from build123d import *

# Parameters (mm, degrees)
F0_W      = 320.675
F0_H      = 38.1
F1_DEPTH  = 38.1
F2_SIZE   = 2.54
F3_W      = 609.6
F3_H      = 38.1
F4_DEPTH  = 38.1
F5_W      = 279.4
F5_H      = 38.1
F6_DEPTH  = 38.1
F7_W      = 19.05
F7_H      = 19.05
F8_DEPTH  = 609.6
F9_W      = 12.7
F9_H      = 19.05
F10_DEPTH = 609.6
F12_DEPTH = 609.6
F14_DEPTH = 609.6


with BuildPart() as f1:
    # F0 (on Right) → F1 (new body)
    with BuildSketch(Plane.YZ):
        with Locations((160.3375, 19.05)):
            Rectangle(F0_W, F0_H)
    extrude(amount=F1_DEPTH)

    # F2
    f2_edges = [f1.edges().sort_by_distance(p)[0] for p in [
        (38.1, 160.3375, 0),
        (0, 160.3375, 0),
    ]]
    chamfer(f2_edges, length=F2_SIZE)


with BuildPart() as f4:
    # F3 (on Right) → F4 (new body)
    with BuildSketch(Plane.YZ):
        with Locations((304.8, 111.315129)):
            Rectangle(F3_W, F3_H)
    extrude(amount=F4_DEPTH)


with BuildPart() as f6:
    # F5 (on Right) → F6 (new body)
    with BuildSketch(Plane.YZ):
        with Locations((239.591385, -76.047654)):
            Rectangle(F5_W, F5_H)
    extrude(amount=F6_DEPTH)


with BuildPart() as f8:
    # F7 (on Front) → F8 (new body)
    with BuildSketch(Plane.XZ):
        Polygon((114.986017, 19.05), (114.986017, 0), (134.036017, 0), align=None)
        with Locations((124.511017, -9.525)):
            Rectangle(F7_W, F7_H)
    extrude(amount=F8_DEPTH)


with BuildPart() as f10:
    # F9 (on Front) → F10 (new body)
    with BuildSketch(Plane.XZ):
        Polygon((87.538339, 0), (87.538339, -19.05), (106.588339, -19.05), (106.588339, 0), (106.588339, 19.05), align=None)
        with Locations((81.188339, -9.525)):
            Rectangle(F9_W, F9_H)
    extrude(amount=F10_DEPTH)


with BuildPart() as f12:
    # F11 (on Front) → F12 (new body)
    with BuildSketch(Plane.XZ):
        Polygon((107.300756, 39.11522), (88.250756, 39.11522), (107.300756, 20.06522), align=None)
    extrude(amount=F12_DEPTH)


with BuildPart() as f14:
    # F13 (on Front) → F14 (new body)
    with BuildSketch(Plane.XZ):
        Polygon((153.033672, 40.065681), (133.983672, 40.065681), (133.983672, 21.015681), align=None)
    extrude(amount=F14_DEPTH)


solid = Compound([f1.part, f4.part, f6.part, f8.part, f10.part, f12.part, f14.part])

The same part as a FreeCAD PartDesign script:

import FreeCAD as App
import Part
import Sketcher
from FreeCAD import Vector
Q = App.Units.Quantity


def edges_at(feature, points):
    """Names of the edges that pass closest to the given points."""
    edges = feature.Shape.Edges
    near = lambda p: min(range(len(edges)), key=lambda i: edges[i].distToShape(Part.Vertex(*p))[0])
    return sorted({f"Edge{near(p) + 1}" for p in points})


def add_polygon(sketch, points):
    """Adds a closed chain of lines whose ends are joined by coincident constraints."""
    first, n = sketch.GeometryCount, len(points)
    for a, b in zip(points, points[1:] + points[:1]):
        sketch.addGeometry(Part.LineSegment(App.Vector(*a, 0), App.Vector(*b, 0)), False)
    for i in range(n):
        sketch.addConstraint(Sketcher.Constraint("Coincident", first + i, 2, first + (i + 1) % n, 1))

doc = App.newDocument("Part")
body = doc.addObject("PartDesign::Body", "Body")

# Sketch on YZ plane
sketch1 = body.newObject("Sketcher::SketchObject", "Sketch")
sketch1.AttachmentSupport = (doc.getObject("YZ_Plane"), [""])
sketch1.MapMode = "FlatFace"
add_polygon(sketch1, [(0, 38.1), (0, 0), (320.675, 0), (320.675, 38.1)])  # lines 0-3
sketch1.addConstraint([
    Sketcher.Constraint("Vertical", 0),
    Sketcher.Constraint("Horizontal", 1),
    Sketcher.Constraint("Vertical", 2),
    Sketcher.Constraint("Horizontal", 3),
    Sketcher.Constraint("Coincident", 0, 2, -1, 1),
    Sketcher.Constraint("DistanceY", 0, 2, 0, 1, Q("1.5 in")),
    Sketcher.Constraint("DistanceX", 1, 1, 1, 2, Q("12.625 in")),
])
pad1 = body.newObject("PartDesign::Pad", "Pad")
pad1.Profile = sketch1
pad1.Length = Q("1.5 in")
doc.recompute()

chamfer = body.newObject("PartDesign::Chamfer", "Chamfer")
chamfer.Base = (pad1, edges_at(pad1, [(38.1, 160.338, 0), (0, 160.338, 0)]))
chamfer.Size = Q("0.1 in")
body2 = doc.addObject("PartDesign::Body", "Body001")

# Sketch on YZ plane
sketch2 = body2.newObject("Sketcher::SketchObject", "Sketch001")
sketch2.AttachmentSupport = (doc.getObject("YZ_Plane001"), [""])
sketch2.MapMode = "FlatFace"
add_polygon(sketch2, [(0, 130.365129), (0, 92.265129), (609.6, 92.265129), (609.6, 130.365129)])  # lines 0-3
sketch2.addConstraint([
    Sketcher.Constraint("Vertical", 0),
    Sketcher.Constraint("Horizontal", 1),
    Sketcher.Constraint("Vertical", 2),
    Sketcher.Constraint("Horizontal", 3),
    Sketcher.Constraint("PointOnObject", 0, 2, -2),
    Sketcher.Constraint("DistanceX", 1, 1, 1, 2, Q("24 in")),
    Sketcher.Constraint("DistanceY", 0, 2, 0, 1, Q("1.5 in")),
    Sketcher.Constraint("DistanceY", -1, 1, 0, 2, Q("92.265129 mm")),
])
pad2 = body2.newObject("PartDesign::Pad", "Pad001")
pad2.Profile = sketch2
pad2.Length = Q("1.5 in")
body3 = doc.addObject("PartDesign::Body", "Body002")

# Sketch on YZ plane
sketch3 = body3.newObject("Sketcher::SketchObject", "Sketch002")
sketch3.AttachmentSupport = (doc.getObject("YZ_Plane002"), [""])
sketch3.MapMode = "FlatFace"
add_polygon(sketch3, [(99.891385, -56.997654), (99.891385, -95.097654), (379.291385, -95.097654), (379.291385, -56.997654)])  # lines 0-3
sketch3.addConstraint([
    Sketcher.Constraint("Vertical", 0),
    Sketcher.Constraint("Horizontal", 1),
    Sketcher.Constraint("Vertical", 2),
    Sketcher.Constraint("Horizontal", 3),
    Sketcher.Constraint("DistanceX", 1, 1, 1, 2, Q("11 in")),
    Sketcher.Constraint("DistanceY", 0, 2, 0, 1, Q("1.5 in")),
    Sketcher.Constraint("DistanceX", -1, 1, 0, 2, Q("99.891385 mm")),
    Sketcher.Constraint("DistanceY", 0, 2, -1, 1, Q("95.097654 mm")),
])
pad3 = body3.newObject("PartDesign::Pad", "Pad002")
pad3.Profile = sketch3
pad3.Length = Q("1.5 in")
body4 = doc.addObject("PartDesign::Body", "Body003")

# Sketch on XZ plane
sketch4 = body4.newObject("Sketcher::SketchObject", "Sketch003")
sketch4.AttachmentSupport = (doc.getObject("XZ_Plane003"), [""])
sketch4.MapMode = "FlatFace"
add_polygon(sketch4, [(114.986017, 19.05), (114.986017, -19.05), (134.036017, -19.05), (134.036017, 0)])  # lines 0-3
sketch4.addConstraint([
    Sketcher.Constraint("Vertical", 0),
    Sketcher.Constraint("Horizontal", 1),
    Sketcher.Constraint("Vertical", 2),
    Sketcher.Constraint("PointOnObject", 2, 2, -1),
    Sketcher.Constraint("Equal", 1, 2),
    Sketcher.Constraint("DistanceY", 0, 2, 0, 1, Q("1.5 in")),
    Sketcher.Constraint("Angle", 3, Q("135 deg")),
    Sketcher.Constraint("DistanceX", -1, 1, 0, 2, Q("114.986017 mm")),
])
pad4 = body4.newObject("PartDesign::Pad", "Pad003")
pad4.Profile = sketch4
pad4.Length = Q("24 in")
body5 = doc.addObject("PartDesign::Body", "Body004")

# Sketch on XZ plane
sketch5 = body5.newObject("Sketcher::SketchObject", "Sketch004")
sketch5.AttachmentSupport = (doc.getObject("XZ_Plane004"), [""])
sketch5.MapMode = "FlatFace"
add_polygon(sketch5, [(106.588339, -19.05), (106.588339, 19.05), (87.538339, 0), (74.838339, 0), (74.838339, -19.05)])  # lines 0-4
sketch5.addConstraint([
    Sketcher.Constraint("Vertical", 0),
    Sketcher.Constraint("Horizontal", 2),
    Sketcher.Constraint("Vertical", 3),
    Sketcher.Constraint("Horizontal", 4),
    Sketcher.Constraint("PointOnObject", 1, 2, -1),
    Sketcher.Constraint("DistanceX", 2, 2, 2, 1, Q("0.5 in")),
    Sketcher.Constraint("DistanceY", 0, 1, 0, 2, Q("1.5 in")),
    Sketcher.Constraint("Angle", 1, Q("-135 deg")),
    Sketcher.Constraint("DistanceX", 4, 1, 4, 2, Q("1.25 in")),
    Sketcher.Constraint("DistanceX", -1, 1, 0, 2, Q("106.588339 mm")),
])
pad5 = body5.newObject("PartDesign::Pad", "Pad004")
pad5.Profile = sketch5
pad5.Length = Q("24 in")
body6 = doc.addObject("PartDesign::Body", "Body005")

# Sketch on XZ plane
sketch6 = body6.newObject("Sketcher::SketchObject", "Sketch005")
sketch6.AttachmentSupport = (doc.getObject("XZ_Plane005"), [""])
sketch6.MapMode = "FlatFace"
add_polygon(sketch6, [(107.300756, 39.11522), (88.250756, 39.11522), (107.300756, 20.06522)])  # lines 0-2
sketch6.addConstraint([
    Sketcher.Constraint("Horizontal", 0),
    Sketcher.Constraint("Vertical", 2),
    Sketcher.Constraint("Equal", 0, 2),
    Sketcher.Constraint("DistanceX", 0, 2, 0, 1, Q("0.75 in")),
    Sketcher.Constraint("DistanceY", -1, 1, 0, 2, Q("39.11522 mm")),
    Sketcher.Constraint("DistanceX", -1, 1, 0, 2, Q("88.250756 mm")),
])
pad6 = body6.newObject("PartDesign::Pad", "Pad005")
pad6.Profile = sketch6
pad6.Length = Q("24 in")
body7 = doc.addObject("PartDesign::Body", "Body006")

# Sketch on XZ plane
sketch7 = body7.newObject("Sketcher::SketchObject", "Sketch006")
sketch7.AttachmentSupport = (doc.getObject("XZ_Plane006"), [""])
sketch7.MapMode = "FlatFace"
add_polygon(sketch7, [(153.033672, 40.065681), (133.983672, 40.065681), (133.983672, 21.015681)])  # lines 0-2
sketch7.addConstraint([
    Sketcher.Constraint("Horizontal", 0),
    Sketcher.Constraint("Vertical", 1),
    Sketcher.Constraint("Equal", 0, 1),
    Sketcher.Constraint("DistanceX", 0, 2, 0, 1, Q("0.75 in")),
    Sketcher.Constraint("DistanceY", -1, 1, 0, 2, Q("40.065681 mm")),
    Sketcher.Constraint("DistanceX", -1, 1, 2, 2, Q("153.033672 mm")),
])
pad7 = body7.newObject("PartDesign::Pad", "Pad006")
pad7.Profile = sketch7
pad7.Length = Q("24 in")

doc.recompute()
